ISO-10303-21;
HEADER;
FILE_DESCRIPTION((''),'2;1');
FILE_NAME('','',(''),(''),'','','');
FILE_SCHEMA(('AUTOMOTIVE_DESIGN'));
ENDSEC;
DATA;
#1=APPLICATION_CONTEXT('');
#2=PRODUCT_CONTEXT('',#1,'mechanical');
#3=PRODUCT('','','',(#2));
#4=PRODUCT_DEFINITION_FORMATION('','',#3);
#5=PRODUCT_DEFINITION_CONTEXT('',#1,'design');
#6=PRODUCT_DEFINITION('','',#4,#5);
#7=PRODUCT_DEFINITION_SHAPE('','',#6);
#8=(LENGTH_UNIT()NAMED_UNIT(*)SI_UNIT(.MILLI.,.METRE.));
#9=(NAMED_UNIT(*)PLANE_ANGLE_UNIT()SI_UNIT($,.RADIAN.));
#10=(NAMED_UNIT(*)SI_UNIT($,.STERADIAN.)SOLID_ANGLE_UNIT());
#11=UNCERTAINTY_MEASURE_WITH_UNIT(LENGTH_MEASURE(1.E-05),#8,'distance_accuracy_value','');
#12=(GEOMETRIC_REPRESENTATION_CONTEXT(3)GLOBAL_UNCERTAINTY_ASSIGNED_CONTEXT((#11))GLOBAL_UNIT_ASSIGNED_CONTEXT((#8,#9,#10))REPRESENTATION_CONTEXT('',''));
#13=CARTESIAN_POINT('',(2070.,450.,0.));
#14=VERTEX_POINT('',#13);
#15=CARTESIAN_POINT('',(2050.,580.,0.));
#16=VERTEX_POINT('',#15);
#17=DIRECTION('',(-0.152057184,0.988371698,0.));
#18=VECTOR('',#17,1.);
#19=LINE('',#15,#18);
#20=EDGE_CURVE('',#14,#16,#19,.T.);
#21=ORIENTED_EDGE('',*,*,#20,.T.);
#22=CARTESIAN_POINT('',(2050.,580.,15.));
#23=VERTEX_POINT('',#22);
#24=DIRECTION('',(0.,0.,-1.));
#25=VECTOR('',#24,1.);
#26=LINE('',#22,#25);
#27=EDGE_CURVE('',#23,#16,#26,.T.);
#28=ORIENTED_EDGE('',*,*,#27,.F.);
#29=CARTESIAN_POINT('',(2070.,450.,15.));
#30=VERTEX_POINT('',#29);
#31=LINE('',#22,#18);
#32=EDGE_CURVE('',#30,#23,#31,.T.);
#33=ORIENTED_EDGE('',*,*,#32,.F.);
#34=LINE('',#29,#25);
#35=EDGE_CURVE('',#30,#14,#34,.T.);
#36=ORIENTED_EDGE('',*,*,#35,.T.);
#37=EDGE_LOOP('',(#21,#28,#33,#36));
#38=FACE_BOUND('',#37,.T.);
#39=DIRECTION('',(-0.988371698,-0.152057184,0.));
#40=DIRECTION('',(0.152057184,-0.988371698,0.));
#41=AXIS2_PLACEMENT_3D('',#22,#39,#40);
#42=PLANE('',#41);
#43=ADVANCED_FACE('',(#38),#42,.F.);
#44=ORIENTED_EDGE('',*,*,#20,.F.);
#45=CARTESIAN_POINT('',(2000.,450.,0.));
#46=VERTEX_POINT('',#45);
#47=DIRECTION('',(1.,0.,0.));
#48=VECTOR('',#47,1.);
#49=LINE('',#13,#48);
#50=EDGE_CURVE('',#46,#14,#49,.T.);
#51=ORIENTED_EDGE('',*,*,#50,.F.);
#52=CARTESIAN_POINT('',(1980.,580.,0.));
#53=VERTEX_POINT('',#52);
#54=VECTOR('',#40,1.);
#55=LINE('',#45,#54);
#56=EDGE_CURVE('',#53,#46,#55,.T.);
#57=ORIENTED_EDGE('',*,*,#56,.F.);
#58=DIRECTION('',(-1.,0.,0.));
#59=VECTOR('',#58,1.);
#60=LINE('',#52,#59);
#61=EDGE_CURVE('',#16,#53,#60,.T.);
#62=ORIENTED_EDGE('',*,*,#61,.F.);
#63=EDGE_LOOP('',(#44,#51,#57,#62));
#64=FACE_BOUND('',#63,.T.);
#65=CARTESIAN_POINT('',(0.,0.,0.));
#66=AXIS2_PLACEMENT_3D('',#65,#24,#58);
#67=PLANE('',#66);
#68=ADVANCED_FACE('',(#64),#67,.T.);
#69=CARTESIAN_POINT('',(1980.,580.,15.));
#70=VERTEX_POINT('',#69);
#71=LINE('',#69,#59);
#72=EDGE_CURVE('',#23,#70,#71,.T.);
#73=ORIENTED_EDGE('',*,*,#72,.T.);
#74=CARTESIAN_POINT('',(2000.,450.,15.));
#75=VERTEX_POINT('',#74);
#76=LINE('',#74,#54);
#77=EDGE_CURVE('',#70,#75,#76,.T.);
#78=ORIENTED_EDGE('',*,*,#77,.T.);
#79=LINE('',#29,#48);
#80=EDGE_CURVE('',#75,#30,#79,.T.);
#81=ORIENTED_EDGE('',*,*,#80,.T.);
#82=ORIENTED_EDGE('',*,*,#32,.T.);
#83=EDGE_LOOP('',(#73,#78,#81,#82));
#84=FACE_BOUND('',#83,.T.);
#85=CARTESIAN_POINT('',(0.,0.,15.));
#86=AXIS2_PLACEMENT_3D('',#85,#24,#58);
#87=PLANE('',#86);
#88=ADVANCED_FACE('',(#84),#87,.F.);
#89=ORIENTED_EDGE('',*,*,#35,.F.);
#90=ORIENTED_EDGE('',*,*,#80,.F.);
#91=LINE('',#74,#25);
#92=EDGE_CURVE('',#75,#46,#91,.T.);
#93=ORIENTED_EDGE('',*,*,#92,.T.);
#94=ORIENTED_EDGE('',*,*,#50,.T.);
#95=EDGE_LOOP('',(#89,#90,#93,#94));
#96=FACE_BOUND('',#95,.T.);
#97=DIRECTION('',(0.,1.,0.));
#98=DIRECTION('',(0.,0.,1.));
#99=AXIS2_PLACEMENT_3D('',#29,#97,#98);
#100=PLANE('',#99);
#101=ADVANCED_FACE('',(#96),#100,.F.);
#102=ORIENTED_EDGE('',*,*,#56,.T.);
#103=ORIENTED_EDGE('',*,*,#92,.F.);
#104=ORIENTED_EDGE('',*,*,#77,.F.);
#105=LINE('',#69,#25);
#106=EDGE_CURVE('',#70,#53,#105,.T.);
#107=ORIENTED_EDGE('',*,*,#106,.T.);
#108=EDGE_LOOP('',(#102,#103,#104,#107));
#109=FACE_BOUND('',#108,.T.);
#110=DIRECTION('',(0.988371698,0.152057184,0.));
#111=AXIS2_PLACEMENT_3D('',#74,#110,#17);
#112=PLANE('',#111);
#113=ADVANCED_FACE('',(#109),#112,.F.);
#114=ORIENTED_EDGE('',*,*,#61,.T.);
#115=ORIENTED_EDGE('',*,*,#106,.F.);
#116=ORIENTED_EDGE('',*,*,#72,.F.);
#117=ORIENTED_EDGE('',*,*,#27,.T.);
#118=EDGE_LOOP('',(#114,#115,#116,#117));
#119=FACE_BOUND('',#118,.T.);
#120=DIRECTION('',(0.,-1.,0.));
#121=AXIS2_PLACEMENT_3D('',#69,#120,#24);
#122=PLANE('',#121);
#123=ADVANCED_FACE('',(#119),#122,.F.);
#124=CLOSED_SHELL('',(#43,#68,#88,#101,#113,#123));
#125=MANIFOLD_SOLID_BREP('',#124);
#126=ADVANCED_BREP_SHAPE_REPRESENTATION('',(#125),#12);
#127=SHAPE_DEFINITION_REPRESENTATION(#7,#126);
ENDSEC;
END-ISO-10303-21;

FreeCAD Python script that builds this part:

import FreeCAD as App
import Part
import Sketcher
Q = App.Units.Quantity

doc = App.newDocument("Part")
params = doc.addObject("Spreadsheet::Sheet", "Params")
for row, (alias, value) in enumerate([
    ("sketch1_width", "70 mm"),
    ("pad1_length", "15 mm"),
], start=1):
    params.set(f"A{row}", alias)
    params.set(f"B{row}", "=" + value)
    params.setAlias(f"B{row}", alias)

body = doc.addObject("PartDesign::Body", "Body")

sketch1 = doc.addObject("Sketcher::SketchObject", "Sketch")
body.addObject(sketch1)
sketch1.AttachmentSupport = (doc.XY_Plane, [""])
sketch1.MapMode = "FlatFace"
sketch1.addGeometry(Part.LineSegment(App.Vector(1980, 580, 0), App.Vector(2000, 450, 0)), False)
sketch1.addGeometry(Part.LineSegment(App.Vector(2000, 450, 0), App.Vector(2070, 450, 0)), False)
sketch1.addGeometry(Part.LineSegment(App.Vector(2070, 450, 0), App.Vector(2050, 580, 0)), False)
sketch1.addGeometry(Part.LineSegment(App.Vector(2050, 580, 0), App.Vector(1980, 580, 0)), False)
sketch1.addConstraint(Sketcher.Constraint("Coincident", 0, 2, 1, 1))
sketch1.addConstraint(Sketcher.Constraint("Coincident", 1, 2, 2, 1))
sketch1.addConstraint(Sketcher.Constraint("Coincident", 2, 2, 3, 1))
sketch1.addConstraint(Sketcher.Constraint("Coincident", 3, 2, 0, 1))
sketch1.addConstraint(Sketcher.Constraint("Horizontal", 1))
sketch1.addConstraint(Sketcher.Constraint("Horizontal", 3))
sketch1.addConstraint(Sketcher.Constraint("Parallel", 0, 2))
sketch1.addConstraint(Sketcher.Constraint("DistanceX", 1, 1, 1, 2, Q("70 mm")))
sketch1.addConstraint(Sketcher.Constraint("DistanceX", -1, 1, 0, 2, Q("2000 mm")))
sketch1.addConstraint(Sketcher.Constraint("DistanceY", -1, 1, 0, 2, Q("450 mm")))
sketch1.addConstraint(Sketcher.Constraint("DistanceX", -1, 1, 2, 2, Q("2050 mm")))
sketch1.addConstraint(Sketcher.Constraint("DistanceY", -1, 1, 2, 2, Q("580 mm")))
sketch1.setExpression("Constraints[7]", "Params.sketch1_width")
pad1 = doc.addObject("PartDesign::Pad", "Pad")
body.addObject(pad1)
pad1.Profile = sketch1
pad1.setExpression("Length", "Params.pad1_length")

doc.recompute()
